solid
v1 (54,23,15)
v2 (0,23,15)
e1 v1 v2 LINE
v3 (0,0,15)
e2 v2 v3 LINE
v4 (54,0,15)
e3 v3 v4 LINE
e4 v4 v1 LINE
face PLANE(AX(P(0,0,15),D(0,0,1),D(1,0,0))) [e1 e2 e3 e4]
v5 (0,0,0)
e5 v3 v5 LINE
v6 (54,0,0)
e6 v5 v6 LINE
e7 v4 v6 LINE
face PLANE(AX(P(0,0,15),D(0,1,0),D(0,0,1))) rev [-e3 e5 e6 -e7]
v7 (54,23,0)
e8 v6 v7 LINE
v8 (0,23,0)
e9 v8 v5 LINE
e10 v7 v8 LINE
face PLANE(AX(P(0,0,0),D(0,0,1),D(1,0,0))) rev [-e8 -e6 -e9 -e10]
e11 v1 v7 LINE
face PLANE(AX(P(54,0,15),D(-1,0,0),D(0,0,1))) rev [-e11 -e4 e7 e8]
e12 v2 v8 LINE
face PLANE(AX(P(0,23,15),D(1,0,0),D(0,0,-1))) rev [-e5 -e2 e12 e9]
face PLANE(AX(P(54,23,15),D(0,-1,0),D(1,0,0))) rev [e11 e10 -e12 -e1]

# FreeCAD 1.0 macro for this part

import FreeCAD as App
import Part
import Sketcher

doc = App.newDocument("Part")
body = doc.addObject("PartDesign::Body", "Body")

# Sketch on XY plane
sketch1 = body.newObject("Sketcher::SketchObject", "Sketch")
sketch1.AttachmentSupport = (doc.getObject("XY_Plane"), [""])
sketch1.MapMode = "FlatFace"
sketch1.addGeometry(Part.LineSegment(App.Vector(0, 23, 0), App.Vector(0, 0, 0)), False)
sketch1.addGeometry(Part.LineSegment(App.Vector(0, 0, 0), App.Vector(54, 0, 0)), False)
sketch1.addGeometry(Part.LineSegment(App.Vector(54, 0, 0), App.Vector(54, 23, 0)), False)
sketch1.addGeometry(Part.LineSegment(App.Vector(54, 23, 0), App.Vector(0, 23, 0)), False)
sketch1.addConstraint(Sketcher.Constraint("Coincident", 0, 2, 1, 1))
sketch1.addConstraint(Sketcher.Constraint("Coincident", 1, 2, 2, 1))
sketch1.addConstraint(Sketcher.Constraint("Coincident", 2, 2, 3, 1))
sketch1.addConstraint(Sketcher.Constraint("Coincident", 3, 2, 0, 1))
sketch1.addConstraint(Sketcher.Constraint("Vertical", 0))
sketch1.addConstraint(Sketcher.Constraint("Horizontal", 1))
sketch1.addConstraint(Sketcher.Constraint("Vertical", 2))
sketch1.addConstraint(Sketcher.Constraint("Horizontal", 3))
sketch1.addConstraint(Sketcher.Constraint("Coincident", 0, 2, -1, 1))
sketch1.addConstraint(Sketcher.Constraint("DistanceX", 1, 1, 1, 2, 54.0))
sketch1.addConstraint(Sketcher.Constraint("DistanceY", 0, 2, 0, 1, 23.0))
pad1 = body.newObject("PartDesign::Pad", "Pad")
pad1.Profile = sketch1
pad1.Length = 15

doc.recompute()
